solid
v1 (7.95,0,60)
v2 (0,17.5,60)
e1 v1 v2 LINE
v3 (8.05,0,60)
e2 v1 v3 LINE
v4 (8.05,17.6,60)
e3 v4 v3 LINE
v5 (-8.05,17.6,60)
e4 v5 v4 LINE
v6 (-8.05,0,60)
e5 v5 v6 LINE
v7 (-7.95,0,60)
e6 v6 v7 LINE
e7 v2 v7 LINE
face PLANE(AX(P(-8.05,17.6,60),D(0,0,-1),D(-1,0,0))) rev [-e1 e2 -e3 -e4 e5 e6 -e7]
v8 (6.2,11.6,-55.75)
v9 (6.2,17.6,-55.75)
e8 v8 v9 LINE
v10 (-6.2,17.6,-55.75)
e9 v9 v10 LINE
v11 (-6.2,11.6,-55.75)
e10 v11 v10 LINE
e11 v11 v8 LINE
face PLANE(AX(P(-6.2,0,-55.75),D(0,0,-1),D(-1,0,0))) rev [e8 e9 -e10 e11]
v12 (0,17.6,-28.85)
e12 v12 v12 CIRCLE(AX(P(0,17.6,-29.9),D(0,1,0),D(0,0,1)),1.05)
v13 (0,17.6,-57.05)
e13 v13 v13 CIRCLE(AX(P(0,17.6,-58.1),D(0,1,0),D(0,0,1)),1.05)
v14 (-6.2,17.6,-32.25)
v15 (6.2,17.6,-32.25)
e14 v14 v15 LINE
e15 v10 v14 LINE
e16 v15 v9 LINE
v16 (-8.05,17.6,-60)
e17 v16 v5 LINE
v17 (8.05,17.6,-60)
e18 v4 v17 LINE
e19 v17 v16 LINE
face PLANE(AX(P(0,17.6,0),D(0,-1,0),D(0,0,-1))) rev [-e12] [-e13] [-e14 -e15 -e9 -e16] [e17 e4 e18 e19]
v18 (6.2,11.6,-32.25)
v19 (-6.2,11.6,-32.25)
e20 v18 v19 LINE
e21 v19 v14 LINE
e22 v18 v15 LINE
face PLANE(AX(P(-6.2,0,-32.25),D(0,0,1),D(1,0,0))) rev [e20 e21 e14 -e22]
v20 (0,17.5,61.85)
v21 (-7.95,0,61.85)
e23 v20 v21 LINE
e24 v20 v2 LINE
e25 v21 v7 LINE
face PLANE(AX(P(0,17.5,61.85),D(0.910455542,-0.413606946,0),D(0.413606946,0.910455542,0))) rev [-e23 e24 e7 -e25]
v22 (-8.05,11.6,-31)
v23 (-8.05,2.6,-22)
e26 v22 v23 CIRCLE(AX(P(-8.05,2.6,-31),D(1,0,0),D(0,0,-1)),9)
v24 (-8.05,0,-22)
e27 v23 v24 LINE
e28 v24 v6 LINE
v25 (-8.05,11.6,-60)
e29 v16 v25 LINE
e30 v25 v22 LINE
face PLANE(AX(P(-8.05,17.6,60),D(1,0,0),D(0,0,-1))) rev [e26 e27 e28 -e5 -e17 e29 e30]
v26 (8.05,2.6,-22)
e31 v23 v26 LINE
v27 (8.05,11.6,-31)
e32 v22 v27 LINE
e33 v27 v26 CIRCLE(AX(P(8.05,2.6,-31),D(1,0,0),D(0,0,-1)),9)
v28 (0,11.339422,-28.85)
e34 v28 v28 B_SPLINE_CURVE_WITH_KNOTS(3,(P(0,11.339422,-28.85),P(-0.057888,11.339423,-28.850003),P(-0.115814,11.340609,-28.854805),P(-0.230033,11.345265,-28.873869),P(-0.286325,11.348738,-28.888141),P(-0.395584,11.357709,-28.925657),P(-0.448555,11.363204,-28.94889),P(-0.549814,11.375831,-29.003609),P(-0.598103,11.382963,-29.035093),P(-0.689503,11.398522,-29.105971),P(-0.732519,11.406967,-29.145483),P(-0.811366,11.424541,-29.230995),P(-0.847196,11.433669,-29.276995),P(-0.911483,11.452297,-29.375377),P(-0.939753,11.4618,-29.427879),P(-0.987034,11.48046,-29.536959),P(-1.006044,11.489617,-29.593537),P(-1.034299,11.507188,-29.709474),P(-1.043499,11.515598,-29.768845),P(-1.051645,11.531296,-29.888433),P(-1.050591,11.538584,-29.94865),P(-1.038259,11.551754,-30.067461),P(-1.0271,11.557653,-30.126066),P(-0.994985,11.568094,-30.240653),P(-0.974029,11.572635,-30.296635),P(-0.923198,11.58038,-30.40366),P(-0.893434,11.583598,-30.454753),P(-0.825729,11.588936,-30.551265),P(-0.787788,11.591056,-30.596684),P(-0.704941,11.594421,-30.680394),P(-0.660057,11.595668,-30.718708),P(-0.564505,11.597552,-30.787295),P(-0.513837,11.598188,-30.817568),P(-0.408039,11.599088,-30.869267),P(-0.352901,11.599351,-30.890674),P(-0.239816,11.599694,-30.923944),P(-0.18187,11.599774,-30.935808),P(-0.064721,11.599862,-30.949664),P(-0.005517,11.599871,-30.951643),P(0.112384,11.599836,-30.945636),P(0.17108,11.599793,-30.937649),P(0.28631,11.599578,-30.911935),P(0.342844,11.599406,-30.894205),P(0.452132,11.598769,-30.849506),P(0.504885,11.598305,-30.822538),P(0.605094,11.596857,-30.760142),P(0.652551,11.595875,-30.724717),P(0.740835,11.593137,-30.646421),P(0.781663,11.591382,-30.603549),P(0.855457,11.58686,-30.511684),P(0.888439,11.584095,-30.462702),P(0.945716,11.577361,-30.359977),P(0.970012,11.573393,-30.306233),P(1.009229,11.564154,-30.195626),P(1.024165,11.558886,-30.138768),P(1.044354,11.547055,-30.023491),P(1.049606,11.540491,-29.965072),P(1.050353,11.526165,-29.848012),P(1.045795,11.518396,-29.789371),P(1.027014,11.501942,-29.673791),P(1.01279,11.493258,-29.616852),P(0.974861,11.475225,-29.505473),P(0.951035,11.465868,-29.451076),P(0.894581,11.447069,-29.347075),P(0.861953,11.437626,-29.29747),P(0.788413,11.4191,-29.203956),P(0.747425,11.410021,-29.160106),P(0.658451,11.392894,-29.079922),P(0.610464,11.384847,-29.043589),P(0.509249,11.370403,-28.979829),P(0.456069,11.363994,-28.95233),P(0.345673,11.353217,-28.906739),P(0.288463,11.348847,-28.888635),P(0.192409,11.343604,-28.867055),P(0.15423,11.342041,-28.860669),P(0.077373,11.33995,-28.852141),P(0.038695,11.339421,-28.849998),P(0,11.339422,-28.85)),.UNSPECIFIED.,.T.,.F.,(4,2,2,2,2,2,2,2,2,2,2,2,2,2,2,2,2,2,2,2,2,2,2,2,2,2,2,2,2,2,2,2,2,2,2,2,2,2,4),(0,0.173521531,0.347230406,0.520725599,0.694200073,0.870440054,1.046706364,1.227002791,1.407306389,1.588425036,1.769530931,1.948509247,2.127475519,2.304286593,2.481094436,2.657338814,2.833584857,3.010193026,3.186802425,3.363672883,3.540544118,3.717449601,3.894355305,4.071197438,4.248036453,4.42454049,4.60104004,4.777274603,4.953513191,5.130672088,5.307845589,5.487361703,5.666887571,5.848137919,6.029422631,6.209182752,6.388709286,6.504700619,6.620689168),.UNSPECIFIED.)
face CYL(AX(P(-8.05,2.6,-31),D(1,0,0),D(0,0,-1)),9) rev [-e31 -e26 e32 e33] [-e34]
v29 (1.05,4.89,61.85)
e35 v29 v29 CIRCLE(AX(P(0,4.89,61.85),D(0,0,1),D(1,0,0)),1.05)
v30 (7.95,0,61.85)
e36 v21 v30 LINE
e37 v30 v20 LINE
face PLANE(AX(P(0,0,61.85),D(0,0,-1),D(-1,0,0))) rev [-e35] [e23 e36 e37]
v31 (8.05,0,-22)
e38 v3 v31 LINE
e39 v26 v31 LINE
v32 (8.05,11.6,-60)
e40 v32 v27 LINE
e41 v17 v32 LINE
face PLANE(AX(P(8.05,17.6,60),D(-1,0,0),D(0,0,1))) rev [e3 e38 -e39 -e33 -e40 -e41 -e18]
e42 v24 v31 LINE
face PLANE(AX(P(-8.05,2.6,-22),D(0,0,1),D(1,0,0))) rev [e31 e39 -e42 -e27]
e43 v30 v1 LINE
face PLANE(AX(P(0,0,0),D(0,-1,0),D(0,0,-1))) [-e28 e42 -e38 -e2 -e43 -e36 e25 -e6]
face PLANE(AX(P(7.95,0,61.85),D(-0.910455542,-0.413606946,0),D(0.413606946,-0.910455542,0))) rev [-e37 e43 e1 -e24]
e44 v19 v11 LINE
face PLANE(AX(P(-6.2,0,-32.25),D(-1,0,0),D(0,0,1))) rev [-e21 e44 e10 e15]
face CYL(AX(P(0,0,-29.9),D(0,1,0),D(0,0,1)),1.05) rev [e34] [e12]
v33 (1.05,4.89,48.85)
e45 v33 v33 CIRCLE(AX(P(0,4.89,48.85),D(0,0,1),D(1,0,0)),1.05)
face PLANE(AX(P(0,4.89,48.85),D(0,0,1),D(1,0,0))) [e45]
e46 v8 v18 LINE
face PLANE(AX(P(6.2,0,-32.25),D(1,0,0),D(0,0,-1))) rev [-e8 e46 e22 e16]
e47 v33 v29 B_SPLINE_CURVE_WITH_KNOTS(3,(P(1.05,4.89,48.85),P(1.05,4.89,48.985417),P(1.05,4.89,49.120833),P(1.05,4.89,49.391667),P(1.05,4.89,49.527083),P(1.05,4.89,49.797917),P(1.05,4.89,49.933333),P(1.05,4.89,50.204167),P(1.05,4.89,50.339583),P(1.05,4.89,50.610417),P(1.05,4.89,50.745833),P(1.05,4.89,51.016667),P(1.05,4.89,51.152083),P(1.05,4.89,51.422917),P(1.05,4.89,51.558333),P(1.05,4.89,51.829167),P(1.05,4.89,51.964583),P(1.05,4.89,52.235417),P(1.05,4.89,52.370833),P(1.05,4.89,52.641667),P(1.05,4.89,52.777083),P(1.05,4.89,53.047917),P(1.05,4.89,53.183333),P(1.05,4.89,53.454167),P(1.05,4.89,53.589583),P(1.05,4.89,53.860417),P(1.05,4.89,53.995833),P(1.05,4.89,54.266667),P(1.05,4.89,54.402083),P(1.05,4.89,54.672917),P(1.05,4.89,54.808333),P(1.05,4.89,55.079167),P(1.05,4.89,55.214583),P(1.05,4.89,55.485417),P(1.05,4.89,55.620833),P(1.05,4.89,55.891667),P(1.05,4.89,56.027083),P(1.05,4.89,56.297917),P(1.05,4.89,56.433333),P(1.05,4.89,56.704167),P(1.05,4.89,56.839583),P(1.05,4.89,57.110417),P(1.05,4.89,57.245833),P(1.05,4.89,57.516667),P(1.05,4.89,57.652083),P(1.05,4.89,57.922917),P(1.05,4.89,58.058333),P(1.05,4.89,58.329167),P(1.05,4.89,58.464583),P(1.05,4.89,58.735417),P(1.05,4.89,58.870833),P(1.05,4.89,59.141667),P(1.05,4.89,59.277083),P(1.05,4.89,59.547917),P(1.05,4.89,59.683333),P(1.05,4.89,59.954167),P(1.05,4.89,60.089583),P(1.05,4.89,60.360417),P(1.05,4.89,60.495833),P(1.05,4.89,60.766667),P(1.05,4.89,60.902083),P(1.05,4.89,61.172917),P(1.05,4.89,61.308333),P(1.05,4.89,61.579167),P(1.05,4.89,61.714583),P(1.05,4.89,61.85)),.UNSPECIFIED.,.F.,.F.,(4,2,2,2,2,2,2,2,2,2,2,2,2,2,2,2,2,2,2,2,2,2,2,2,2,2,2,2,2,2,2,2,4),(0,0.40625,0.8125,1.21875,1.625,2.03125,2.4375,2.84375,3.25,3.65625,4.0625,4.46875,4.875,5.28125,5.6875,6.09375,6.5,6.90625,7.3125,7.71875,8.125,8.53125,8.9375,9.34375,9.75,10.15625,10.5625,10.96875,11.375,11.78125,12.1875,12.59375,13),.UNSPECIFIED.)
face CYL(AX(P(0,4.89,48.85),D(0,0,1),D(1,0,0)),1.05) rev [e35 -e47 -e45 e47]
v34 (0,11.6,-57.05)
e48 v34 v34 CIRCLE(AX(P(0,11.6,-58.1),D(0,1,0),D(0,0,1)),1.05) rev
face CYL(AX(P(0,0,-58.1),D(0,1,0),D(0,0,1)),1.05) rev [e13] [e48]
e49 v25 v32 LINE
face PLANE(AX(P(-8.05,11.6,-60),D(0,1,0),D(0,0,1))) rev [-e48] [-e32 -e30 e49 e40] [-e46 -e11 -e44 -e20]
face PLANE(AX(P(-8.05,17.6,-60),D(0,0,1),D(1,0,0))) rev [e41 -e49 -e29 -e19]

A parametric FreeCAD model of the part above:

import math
import FreeCAD as App
import Part
import Sketcher

V = App.Vector


def add_polygon(sketch, points):
    """Adds a closed chain of lines whose ends are joined by coincident constraints."""
    first, n = sketch.GeometryCount, len(points)
    for a, b in zip(points, points[1:] + points[:1]):
        sketch.addGeometry(Part.LineSegment(App.Vector(*a, 0), App.Vector(*b, 0)), False)
    for i in range(n):
        sketch.addConstraint(Sketcher.Constraint("Coincident", first + i, 2, first + (i + 1) % n, 1))

doc = App.newDocument("Part")
body = doc.addObject("PartDesign::Body", "Body")

sketch1 = doc.addObject("Sketcher::SketchObject", "Sketch")
body.addObject(sketch1)
sketch1.AttachmentSupport = (doc.XZ_Plane, [""])
sketch1.MapMode = "FlatFace"
add_polygon(sketch1, [(-8, -60), (-8, 60), (8, 60), (8, -60)])
sketch1.addConstraint([
    Sketcher.Constraint("Vertical", 0),
    Sketcher.Constraint("Horizontal", 1),
    Sketcher.Constraint("Vertical", 2),
    Sketcher.Constraint("Horizontal", 3),
    Sketcher.Constraint("Symmetric", 0, 2, 2, 2, -1, 1),
    Sketcher.Constraint("DistanceY", 0, 1, 0, 2, 120.0),
    Sketcher.Constraint("DistanceX", 1, 1, 1, 2, 16.1),
])
pad1 = doc.addObject("PartDesign::Pad", "Pad")
body.addObject(pad1)
pad1.Profile = sketch1
pad1.Length = 17.6
pad1.Reversed = True

sketch2 = doc.addObject("Sketcher::SketchObject", "Sketch001")
body.addObject(sketch2)
sketch2.AttachmentSupport = (doc.XY_Plane, [""])
sketch2.MapMode = "FlatFace"
sketch2.AttachmentOffset = App.Placement(V(0, 0, 60), App.Rotation())
add_polygon(sketch2, [(0, 18), (-8, 0), (8, 0)])
sketch2.addConstraint([
    Sketcher.Constraint("Horizontal", 1),
    Sketcher.Constraint("Symmetric", 0, 2, 1, 2, -1, 1),
    Sketcher.Constraint("PointOnObject", 2, 2, -2),
    Sketcher.Constraint("DistanceX", 1, 1, 1, 2, 15.9),
    Sketcher.Constraint("DistanceY", -1, 1, 2, 2, 17.5),
])
pad2 = doc.addObject("PartDesign::Pad", "Pad001")
body.addObject(pad2)
pad2.Profile = sketch2
pad2.Length = 1.85

sketch3 = doc.addObject("Sketcher::SketchObject", "Sketch002")
body.addObject(sketch3)
sketch3.AttachmentSupport = (doc.XY_Plane, [""])
sketch3.MapMode = "FlatFace"
sketch3.AttachmentOffset = App.Placement(V(0, 0, 61.85), App.Rotation())
sketch3.addGeometry(Part.Circle(V(0, 4.9, 0), V(0, 0, 1), 1.1), False)
sketch3.addConstraint([
    Sketcher.Constraint("PointOnObject", 0, 3, -2),
    Sketcher.Constraint("Diameter", 0, 2.1),
    Sketcher.Constraint("DistanceY", -1, 1, 0, 3, 4.89),
])
pocket1 = doc.addObject("PartDesign::Pocket", "Pocket")
body.addObject(pocket1)
pocket1.Profile = sketch3
pocket1.Length = 13

sketch4 = doc.addObject("Sketcher::SketchObject", "Sketch003")
body.addObject(sketch4)
sketch4.AttachmentSupport = (doc.XZ_Plane, [""])
sketch4.MapMode = "FlatFace"
sketch4.AttachmentOffset = App.Placement(V(0, 0, -17.6), App.Rotation())
sketch4.addGeometry(Part.Circle(V(0, -58.1, 0), V(0, 0, 1), 1.1), False)
sketch4.addGeometry(Part.Circle(V(0, -29.9, 0), V(0, 0, 1), 1.1), False)
add_polygon(sketch4, [(-6.2, -55.8), (-6.2, -32.2), (6.2, -32.2), (6.2, -55.8)])
sketch4.addConstraint([
    Sketcher.Constraint("Vertical", 2),
    Sketcher.Constraint("Horizontal", 3),
    Sketcher.Constraint("Vertical", 4),
    Sketcher.Constraint("Horizontal", 5),
    Sketcher.Constraint("Equal", 0, 1),
    Sketcher.Constraint("PointOnObject", 0, 3, -2),
    Sketcher.Constraint("PointOnObject", 1, 3, -2),
    Sketcher.Constraint("Diameter", 0, 2.1),
    Sketcher.Constraint("DistanceX", 3, 1, 3, 2, 12.4),
    Sketcher.Constraint("DistanceY", 2, 1, 2, 2, 23.5),
    Sketcher.Constraint("DistanceY", 0, 3, -1, 1, 58.1),
    Sketcher.Constraint("DistanceY", 1, 3, -1, 1, 29.9),
    Sketcher.Constraint("DistanceX", 2, 2, -1, 1, 6.2),
    Sketcher.Constraint("DistanceY", 2, 2, -1, 1, 32.25),
])
pocket2 = doc.addObject("PartDesign::Pocket", "Pocket001")
body.addObject(pocket2)
pocket2.Profile = sketch4
pocket2.Type = "ThroughAll"
pocket2.Reversed = True

sketch5 = doc.addObject("Sketcher::SketchObject", "Sketch004")
body.addObject(sketch5)
sketch5.AttachmentSupport = (doc.YZ_Plane, [""])
sketch5.MapMode = "FlatFace"
sketch5.AttachmentOffset = App.Placement(V(0, 0, 8.05), App.Rotation())
sketch5.addGeometry([
    Part.LineSegment(V(11.6, -60, 0), V(11.6, -31, 0)),
    Part.ArcOfCircle(Part.Circle(V(2.6, -31, 0), V(0, 0, 1), 9), math.radians(0), math.radians(90)),
    Part.LineSegment(V(2.6, -22, 0), V(0, -22, 0)),
    Part.LineSegment(V(0, -22, 0), V(0, -60, 0)),
    Part.LineSegment(V(0, -60, 0), V(11.6, -60, 0)),
], False)
sketch5.addConstraint([
    Sketcher.Constraint("Tangent", 0, 2, 1, 1),
    Sketcher.Constraint("Tangent", 1, 2, 2, 1),
    Sketcher.Constraint("Coincident", 2, 2, 3, 1),
    Sketcher.Constraint("Coincident", 3, 2, 4, 1),
    Sketcher.Constraint("Coincident", 4, 2, 0, 1),
    Sketcher.Constraint("Vertical", 0),
    Sketcher.Constraint("Horizontal", 2),
    Sketcher.Constraint("Vertical", 3),
    Sketcher.Constraint("Horizontal", 4),
    Sketcher.Constraint("PointOnObject", 2, 2, -2),
    Sketcher.Constraint("Radius", 1, 9.0),
    Sketcher.Constraint("DistanceY", 0, 1, 0, 2, 29.0),
    Sketcher.Constraint("DistanceX", 2, 2, 2, 1, 2.6),
    Sketcher.Constraint("DistanceY", 1, 3, -1, 1, 31.0),
])
pocket3 = doc.addObject("PartDesign::Pocket", "Pocket002")
body.addObject(pocket3)
pocket3.Profile = sketch5
pocket3.Type = "ThroughAll"

doc.recompute()
